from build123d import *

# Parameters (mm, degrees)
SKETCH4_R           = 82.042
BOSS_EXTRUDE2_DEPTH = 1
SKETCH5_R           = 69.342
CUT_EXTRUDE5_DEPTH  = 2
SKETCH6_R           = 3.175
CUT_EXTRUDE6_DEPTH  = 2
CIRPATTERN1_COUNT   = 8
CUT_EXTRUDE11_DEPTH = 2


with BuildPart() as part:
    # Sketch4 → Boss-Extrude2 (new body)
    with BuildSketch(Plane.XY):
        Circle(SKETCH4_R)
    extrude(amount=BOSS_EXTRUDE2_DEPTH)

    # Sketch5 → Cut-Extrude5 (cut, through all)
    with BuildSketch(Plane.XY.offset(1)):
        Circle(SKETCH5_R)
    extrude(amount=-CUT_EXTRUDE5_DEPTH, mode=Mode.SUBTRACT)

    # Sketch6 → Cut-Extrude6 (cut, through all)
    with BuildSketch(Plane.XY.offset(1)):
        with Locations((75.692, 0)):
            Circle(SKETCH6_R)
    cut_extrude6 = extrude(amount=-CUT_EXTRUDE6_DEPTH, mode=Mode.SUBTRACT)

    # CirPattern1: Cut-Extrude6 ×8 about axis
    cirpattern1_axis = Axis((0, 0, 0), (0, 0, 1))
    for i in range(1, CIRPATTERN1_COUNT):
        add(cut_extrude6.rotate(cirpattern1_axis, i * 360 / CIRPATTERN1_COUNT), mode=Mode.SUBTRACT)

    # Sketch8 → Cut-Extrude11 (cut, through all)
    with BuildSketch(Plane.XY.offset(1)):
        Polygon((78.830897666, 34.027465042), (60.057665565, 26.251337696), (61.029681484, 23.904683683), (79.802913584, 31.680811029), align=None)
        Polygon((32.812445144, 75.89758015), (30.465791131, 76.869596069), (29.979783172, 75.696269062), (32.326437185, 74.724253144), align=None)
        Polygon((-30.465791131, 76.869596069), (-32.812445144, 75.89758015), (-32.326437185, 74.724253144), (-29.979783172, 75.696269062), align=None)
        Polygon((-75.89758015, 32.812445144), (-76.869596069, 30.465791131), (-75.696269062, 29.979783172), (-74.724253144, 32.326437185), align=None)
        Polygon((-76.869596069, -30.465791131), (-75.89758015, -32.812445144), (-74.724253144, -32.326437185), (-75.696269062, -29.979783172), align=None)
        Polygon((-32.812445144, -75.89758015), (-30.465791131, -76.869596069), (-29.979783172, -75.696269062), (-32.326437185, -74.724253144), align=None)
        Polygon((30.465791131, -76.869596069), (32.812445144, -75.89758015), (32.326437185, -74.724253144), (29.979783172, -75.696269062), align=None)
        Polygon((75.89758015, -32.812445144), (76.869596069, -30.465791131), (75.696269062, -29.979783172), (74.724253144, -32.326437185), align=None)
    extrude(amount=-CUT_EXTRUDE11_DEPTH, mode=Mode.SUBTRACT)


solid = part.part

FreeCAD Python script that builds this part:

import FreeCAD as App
import Part
import Sketcher

V = App.Vector
Q = App.Units.Quantity


def add_polygon(sketch, points):
    """Adds a closed chain of lines whose ends are joined by coincident constraints."""
    first, n = sketch.GeometryCount, len(points)
    for a, b in zip(points, points[1:] + points[:1]):
        sketch.addGeometry(Part.LineSegment(App.Vector(*a, 0), App.Vector(*b, 0)), False)
    for i in range(n):
        sketch.addConstraint(Sketcher.Constraint("Coincident", first + i, 2, first + (i + 1) % n, 1))

doc = App.newDocument("Part")
body = doc.addObject("PartDesign::Body", "Body")

# Sketch on XY plane
sketch1 = body.newObject("Sketcher::SketchObject", "Sketch")
sketch1.AttachmentSupport = (doc.getObject("XY_Plane"), [""])
sketch1.MapMode = "FlatFace"
sketch1.addGeometry(Part.Circle(V(0, 0, 0), V(0, 0, 1), 82), False)
sketch1.addConstraint([
    Sketcher.Constraint("Coincident", 0, 3, -1, 1),
    Sketcher.Constraint("Diameter", 0, Q("6.46 in")),
])
pad1 = body.newObject("PartDesign::Pad", "Pad")
pad1.Profile = sketch1
pad1.Length = 1

# Sketch on XY plane
sketch2 = body.newObject("Sketcher::SketchObject", "Sketch001")
sketch2.AttachmentSupport = (doc.getObject("XY_Plane"), [""])
sketch2.MapMode = "FlatFace"
sketch2.AttachmentOffset = App.Placement(V(0, 0, 1), App.Rotation())
sketch2.addGeometry(Part.Circle(V(0, 0, 0), V(0, 0, 1), 69), False)
sketch2.addConstraint([
    Sketcher.Constraint("Coincident", 0, 3, -1, 1),
    Sketcher.Constraint("Diameter", 0, Q("5.46 in")),
])
pocket1 = body.newObject("PartDesign::Pocket", "Pocket")
pocket1.Profile = sketch2
pocket1.Type = "ThroughAll"

# Sketch on XY plane
sketch3 = body.newObject("Sketcher::SketchObject", "Sketch002")
sketch3.AttachmentSupport = (doc.getObject("XY_Plane"), [""])
sketch3.MapMode = "FlatFace"
sketch3.AttachmentOffset = App.Placement(V(0, 0, 1), App.Rotation())
sketch3.addGeometry(Part.Circle(V(75.7, 0, 0), V(0, 0, 1), 3.2), False)
sketch3.addConstraint([
    Sketcher.Constraint("PointOnObject", 0, 3, -1),
    Sketcher.Constraint("Diameter", 0, Q("0.25 in")),
    Sketcher.Constraint("DistanceX", -1, 1, 0, 3, Q("2.98 in")),
])
pocket2 = body.newObject("PartDesign::Pocket", "Pocket001")
pocket2.Profile = sketch3
pocket2.Type = "ThroughAll"
doc.recompute()

polarpattern = body.newObject("PartDesign::PolarPattern", "PolarPattern")
polarpattern.Originals = [pocket2]
polarpattern.Axis = (doc.getObject("Z_Axis"), [""])
polarpattern.Angle = 360
polarpattern.Occurrences = 8
body.Tip = polarpattern

# Sketch on XY plane
sketch4 = body.newObject("Sketcher::SketchObject", "Sketch003")
sketch4.AttachmentSupport = (doc.getObject("XY_Plane"), [""])
sketch4.MapMode = "FlatFace"
sketch4.AttachmentOffset = App.Placement(V(0, 0, 1), App.Rotation())
add_polygon(sketch4, [(78.8, 34), (60.1, 26.3), (61, 23.9), (79.8, 31.7)])  # lines 0-3
add_polygon(sketch4, [(32.8, 75.9), (30.5, 76.9), (30, 75.7), (32.3, 74.7)])  # lines 4-7
add_polygon(sketch4, [(-30.5, 76.9), (-32.8, 75.9), (-32.3, 74.7), (-30, 75.7)])  # lines 8-11
add_polygon(sketch4, [(-75.9, 32.8), (-76.9, 30.5), (-75.7, 30), (-74.7, 32.3)])  # lines 12-15
add_polygon(sketch4, [(-76.9, -30.5), (-75.9, -32.8), (-74.7, -32.3), (-75.7, -30)])  # lines 16-19
add_polygon(sketch4, [(-32.8, -75.9), (-30.5, -76.9), (-30, -75.7), (-32.3, -74.7)])  # lines 20-23
add_polygon(sketch4, [(30.5, -76.9), (32.8, -75.9), (32.3, -74.7), (30, -75.7)])  # lines 24-27
add_polygon(sketch4, [(75.9, -32.8), (76.9, -30.5), (75.7, -30), (74.7, -32.3)])  # lines 28-31
sketch4.addConstraint([
    Sketcher.Constraint("Symmetric", 4, 2, 20, 2, -1, 1),
    Sketcher.Constraint("Symmetric", 5, 2, 21, 2, -1, 1),
    Sketcher.Constraint("Symmetric", 6, 2, 22, 2, -1, 1),
    Sketcher.Constraint("Symmetric", 7, 2, 23, 2, -1, 1),
    Sketcher.Constraint("Symmetric", 8, 2, 24, 2, -1, 1),
    Sketcher.Constraint("Symmetric", 9, 2, 25, 2, -1, 1),
    Sketcher.Constraint("Symmetric", 10, 2, 26, 2, -1, 1),
    Sketcher.Constraint("Symmetric", 11, 2, 27, 2, -1, 1),
    Sketcher.Constraint("Symmetric", 12, 2, 28, 2, -1, 1),
    Sketcher.Constraint("Symmetric", 13, 2, 29, 2, -1, 1),
    Sketcher.Constraint("Symmetric", 14, 2, 30, 2, -1, 1),
    Sketcher.Constraint("Symmetric", 15, 2, 31, 2, -1, 1),
    Sketcher.Constraint("Symmetric", 7, 2, 8, 2, -2),
    Sketcher.Constraint("Symmetric", 6, 2, 9, 2, -2),
    Sketcher.Constraint("Symmetric", 5, 2, 10, 2, -2),
    Sketcher.Constraint("Symmetric", 4, 2, 11, 2, -2),
    Sketcher.Constraint("Symmetric", 19, 2, 28, 2, -2),
    Sketcher.Constraint("Symmetric", 18, 2, 29, 2, -2),
    Sketcher.Constraint("Symmetric", 17, 2, 30, 2, -2),
    Sketcher.Constraint("Symmetric", 16, 2, 31, 2, -2),
    Sketcher.Constraint("Perpendicular", 0, 1),
    Sketcher.Constraint("Perpendicular", 1, 2),
    Sketcher.Constraint("Perpendicular", 2, 3),
    Sketcher.Constraint("Perpendicular", 4, 5),
    Sketcher.Constraint("Perpendicular", 5, 6),
    Sketcher.Constraint("Perpendicular", 6, 7),
    Sketcher.Constraint("Perpendicular", 3, 8),
    Sketcher.Constraint("Parallel", 7, 12),
    Sketcher.Constraint("Perpendicular", 12, 13),
    Sketcher.Constraint("Perpendicular", 13, 14),
    Sketcher.Constraint("Perpendicular", 14, 15),
    Sketcher.Constraint("Equal", 3, 4),
    Sketcher.Constraint("Equal", 10, 12),
    Sketcher.Constraint("Equal", 11, 13),
    Sketcher.Constraint("Distance", 0, Q("0.8 in")),
    Sketcher.Constraint("Distance", 1, Q("0.1 in")),
    Sketcher.Constraint("Angle", 0, Q("-157.5 deg")),
    Sketcher.Constraint("Distance", 5, Q("0.05 in")),
    Sketcher.Constraint("DistanceX", 5, 2, 1, 2, Q("31.049898 mm")),
    Sketcher.Constraint("DistanceY", 16, 2, 9, 2, Q("107.536698 mm")),
    Sketcher.Constraint("DistanceX", 1, 2, 31, 2, Q("14.867899 mm")),
    Sketcher.Constraint("DistanceX", -1, 1, 1, 2, Q("61.029681 mm")),
    Sketcher.Constraint("DistanceY", -1, 1, 2, 2, Q("31.680811 mm")),
    Sketcher.Constraint("DistanceY", -1, 1, 5, 2, Q("75.696269 mm")),
])
pocket3 = body.newObject("PartDesign::Pocket", "Pocket002")
pocket3.Profile = sketch4
pocket3.Type = "ThroughAll"

doc.recompute()
